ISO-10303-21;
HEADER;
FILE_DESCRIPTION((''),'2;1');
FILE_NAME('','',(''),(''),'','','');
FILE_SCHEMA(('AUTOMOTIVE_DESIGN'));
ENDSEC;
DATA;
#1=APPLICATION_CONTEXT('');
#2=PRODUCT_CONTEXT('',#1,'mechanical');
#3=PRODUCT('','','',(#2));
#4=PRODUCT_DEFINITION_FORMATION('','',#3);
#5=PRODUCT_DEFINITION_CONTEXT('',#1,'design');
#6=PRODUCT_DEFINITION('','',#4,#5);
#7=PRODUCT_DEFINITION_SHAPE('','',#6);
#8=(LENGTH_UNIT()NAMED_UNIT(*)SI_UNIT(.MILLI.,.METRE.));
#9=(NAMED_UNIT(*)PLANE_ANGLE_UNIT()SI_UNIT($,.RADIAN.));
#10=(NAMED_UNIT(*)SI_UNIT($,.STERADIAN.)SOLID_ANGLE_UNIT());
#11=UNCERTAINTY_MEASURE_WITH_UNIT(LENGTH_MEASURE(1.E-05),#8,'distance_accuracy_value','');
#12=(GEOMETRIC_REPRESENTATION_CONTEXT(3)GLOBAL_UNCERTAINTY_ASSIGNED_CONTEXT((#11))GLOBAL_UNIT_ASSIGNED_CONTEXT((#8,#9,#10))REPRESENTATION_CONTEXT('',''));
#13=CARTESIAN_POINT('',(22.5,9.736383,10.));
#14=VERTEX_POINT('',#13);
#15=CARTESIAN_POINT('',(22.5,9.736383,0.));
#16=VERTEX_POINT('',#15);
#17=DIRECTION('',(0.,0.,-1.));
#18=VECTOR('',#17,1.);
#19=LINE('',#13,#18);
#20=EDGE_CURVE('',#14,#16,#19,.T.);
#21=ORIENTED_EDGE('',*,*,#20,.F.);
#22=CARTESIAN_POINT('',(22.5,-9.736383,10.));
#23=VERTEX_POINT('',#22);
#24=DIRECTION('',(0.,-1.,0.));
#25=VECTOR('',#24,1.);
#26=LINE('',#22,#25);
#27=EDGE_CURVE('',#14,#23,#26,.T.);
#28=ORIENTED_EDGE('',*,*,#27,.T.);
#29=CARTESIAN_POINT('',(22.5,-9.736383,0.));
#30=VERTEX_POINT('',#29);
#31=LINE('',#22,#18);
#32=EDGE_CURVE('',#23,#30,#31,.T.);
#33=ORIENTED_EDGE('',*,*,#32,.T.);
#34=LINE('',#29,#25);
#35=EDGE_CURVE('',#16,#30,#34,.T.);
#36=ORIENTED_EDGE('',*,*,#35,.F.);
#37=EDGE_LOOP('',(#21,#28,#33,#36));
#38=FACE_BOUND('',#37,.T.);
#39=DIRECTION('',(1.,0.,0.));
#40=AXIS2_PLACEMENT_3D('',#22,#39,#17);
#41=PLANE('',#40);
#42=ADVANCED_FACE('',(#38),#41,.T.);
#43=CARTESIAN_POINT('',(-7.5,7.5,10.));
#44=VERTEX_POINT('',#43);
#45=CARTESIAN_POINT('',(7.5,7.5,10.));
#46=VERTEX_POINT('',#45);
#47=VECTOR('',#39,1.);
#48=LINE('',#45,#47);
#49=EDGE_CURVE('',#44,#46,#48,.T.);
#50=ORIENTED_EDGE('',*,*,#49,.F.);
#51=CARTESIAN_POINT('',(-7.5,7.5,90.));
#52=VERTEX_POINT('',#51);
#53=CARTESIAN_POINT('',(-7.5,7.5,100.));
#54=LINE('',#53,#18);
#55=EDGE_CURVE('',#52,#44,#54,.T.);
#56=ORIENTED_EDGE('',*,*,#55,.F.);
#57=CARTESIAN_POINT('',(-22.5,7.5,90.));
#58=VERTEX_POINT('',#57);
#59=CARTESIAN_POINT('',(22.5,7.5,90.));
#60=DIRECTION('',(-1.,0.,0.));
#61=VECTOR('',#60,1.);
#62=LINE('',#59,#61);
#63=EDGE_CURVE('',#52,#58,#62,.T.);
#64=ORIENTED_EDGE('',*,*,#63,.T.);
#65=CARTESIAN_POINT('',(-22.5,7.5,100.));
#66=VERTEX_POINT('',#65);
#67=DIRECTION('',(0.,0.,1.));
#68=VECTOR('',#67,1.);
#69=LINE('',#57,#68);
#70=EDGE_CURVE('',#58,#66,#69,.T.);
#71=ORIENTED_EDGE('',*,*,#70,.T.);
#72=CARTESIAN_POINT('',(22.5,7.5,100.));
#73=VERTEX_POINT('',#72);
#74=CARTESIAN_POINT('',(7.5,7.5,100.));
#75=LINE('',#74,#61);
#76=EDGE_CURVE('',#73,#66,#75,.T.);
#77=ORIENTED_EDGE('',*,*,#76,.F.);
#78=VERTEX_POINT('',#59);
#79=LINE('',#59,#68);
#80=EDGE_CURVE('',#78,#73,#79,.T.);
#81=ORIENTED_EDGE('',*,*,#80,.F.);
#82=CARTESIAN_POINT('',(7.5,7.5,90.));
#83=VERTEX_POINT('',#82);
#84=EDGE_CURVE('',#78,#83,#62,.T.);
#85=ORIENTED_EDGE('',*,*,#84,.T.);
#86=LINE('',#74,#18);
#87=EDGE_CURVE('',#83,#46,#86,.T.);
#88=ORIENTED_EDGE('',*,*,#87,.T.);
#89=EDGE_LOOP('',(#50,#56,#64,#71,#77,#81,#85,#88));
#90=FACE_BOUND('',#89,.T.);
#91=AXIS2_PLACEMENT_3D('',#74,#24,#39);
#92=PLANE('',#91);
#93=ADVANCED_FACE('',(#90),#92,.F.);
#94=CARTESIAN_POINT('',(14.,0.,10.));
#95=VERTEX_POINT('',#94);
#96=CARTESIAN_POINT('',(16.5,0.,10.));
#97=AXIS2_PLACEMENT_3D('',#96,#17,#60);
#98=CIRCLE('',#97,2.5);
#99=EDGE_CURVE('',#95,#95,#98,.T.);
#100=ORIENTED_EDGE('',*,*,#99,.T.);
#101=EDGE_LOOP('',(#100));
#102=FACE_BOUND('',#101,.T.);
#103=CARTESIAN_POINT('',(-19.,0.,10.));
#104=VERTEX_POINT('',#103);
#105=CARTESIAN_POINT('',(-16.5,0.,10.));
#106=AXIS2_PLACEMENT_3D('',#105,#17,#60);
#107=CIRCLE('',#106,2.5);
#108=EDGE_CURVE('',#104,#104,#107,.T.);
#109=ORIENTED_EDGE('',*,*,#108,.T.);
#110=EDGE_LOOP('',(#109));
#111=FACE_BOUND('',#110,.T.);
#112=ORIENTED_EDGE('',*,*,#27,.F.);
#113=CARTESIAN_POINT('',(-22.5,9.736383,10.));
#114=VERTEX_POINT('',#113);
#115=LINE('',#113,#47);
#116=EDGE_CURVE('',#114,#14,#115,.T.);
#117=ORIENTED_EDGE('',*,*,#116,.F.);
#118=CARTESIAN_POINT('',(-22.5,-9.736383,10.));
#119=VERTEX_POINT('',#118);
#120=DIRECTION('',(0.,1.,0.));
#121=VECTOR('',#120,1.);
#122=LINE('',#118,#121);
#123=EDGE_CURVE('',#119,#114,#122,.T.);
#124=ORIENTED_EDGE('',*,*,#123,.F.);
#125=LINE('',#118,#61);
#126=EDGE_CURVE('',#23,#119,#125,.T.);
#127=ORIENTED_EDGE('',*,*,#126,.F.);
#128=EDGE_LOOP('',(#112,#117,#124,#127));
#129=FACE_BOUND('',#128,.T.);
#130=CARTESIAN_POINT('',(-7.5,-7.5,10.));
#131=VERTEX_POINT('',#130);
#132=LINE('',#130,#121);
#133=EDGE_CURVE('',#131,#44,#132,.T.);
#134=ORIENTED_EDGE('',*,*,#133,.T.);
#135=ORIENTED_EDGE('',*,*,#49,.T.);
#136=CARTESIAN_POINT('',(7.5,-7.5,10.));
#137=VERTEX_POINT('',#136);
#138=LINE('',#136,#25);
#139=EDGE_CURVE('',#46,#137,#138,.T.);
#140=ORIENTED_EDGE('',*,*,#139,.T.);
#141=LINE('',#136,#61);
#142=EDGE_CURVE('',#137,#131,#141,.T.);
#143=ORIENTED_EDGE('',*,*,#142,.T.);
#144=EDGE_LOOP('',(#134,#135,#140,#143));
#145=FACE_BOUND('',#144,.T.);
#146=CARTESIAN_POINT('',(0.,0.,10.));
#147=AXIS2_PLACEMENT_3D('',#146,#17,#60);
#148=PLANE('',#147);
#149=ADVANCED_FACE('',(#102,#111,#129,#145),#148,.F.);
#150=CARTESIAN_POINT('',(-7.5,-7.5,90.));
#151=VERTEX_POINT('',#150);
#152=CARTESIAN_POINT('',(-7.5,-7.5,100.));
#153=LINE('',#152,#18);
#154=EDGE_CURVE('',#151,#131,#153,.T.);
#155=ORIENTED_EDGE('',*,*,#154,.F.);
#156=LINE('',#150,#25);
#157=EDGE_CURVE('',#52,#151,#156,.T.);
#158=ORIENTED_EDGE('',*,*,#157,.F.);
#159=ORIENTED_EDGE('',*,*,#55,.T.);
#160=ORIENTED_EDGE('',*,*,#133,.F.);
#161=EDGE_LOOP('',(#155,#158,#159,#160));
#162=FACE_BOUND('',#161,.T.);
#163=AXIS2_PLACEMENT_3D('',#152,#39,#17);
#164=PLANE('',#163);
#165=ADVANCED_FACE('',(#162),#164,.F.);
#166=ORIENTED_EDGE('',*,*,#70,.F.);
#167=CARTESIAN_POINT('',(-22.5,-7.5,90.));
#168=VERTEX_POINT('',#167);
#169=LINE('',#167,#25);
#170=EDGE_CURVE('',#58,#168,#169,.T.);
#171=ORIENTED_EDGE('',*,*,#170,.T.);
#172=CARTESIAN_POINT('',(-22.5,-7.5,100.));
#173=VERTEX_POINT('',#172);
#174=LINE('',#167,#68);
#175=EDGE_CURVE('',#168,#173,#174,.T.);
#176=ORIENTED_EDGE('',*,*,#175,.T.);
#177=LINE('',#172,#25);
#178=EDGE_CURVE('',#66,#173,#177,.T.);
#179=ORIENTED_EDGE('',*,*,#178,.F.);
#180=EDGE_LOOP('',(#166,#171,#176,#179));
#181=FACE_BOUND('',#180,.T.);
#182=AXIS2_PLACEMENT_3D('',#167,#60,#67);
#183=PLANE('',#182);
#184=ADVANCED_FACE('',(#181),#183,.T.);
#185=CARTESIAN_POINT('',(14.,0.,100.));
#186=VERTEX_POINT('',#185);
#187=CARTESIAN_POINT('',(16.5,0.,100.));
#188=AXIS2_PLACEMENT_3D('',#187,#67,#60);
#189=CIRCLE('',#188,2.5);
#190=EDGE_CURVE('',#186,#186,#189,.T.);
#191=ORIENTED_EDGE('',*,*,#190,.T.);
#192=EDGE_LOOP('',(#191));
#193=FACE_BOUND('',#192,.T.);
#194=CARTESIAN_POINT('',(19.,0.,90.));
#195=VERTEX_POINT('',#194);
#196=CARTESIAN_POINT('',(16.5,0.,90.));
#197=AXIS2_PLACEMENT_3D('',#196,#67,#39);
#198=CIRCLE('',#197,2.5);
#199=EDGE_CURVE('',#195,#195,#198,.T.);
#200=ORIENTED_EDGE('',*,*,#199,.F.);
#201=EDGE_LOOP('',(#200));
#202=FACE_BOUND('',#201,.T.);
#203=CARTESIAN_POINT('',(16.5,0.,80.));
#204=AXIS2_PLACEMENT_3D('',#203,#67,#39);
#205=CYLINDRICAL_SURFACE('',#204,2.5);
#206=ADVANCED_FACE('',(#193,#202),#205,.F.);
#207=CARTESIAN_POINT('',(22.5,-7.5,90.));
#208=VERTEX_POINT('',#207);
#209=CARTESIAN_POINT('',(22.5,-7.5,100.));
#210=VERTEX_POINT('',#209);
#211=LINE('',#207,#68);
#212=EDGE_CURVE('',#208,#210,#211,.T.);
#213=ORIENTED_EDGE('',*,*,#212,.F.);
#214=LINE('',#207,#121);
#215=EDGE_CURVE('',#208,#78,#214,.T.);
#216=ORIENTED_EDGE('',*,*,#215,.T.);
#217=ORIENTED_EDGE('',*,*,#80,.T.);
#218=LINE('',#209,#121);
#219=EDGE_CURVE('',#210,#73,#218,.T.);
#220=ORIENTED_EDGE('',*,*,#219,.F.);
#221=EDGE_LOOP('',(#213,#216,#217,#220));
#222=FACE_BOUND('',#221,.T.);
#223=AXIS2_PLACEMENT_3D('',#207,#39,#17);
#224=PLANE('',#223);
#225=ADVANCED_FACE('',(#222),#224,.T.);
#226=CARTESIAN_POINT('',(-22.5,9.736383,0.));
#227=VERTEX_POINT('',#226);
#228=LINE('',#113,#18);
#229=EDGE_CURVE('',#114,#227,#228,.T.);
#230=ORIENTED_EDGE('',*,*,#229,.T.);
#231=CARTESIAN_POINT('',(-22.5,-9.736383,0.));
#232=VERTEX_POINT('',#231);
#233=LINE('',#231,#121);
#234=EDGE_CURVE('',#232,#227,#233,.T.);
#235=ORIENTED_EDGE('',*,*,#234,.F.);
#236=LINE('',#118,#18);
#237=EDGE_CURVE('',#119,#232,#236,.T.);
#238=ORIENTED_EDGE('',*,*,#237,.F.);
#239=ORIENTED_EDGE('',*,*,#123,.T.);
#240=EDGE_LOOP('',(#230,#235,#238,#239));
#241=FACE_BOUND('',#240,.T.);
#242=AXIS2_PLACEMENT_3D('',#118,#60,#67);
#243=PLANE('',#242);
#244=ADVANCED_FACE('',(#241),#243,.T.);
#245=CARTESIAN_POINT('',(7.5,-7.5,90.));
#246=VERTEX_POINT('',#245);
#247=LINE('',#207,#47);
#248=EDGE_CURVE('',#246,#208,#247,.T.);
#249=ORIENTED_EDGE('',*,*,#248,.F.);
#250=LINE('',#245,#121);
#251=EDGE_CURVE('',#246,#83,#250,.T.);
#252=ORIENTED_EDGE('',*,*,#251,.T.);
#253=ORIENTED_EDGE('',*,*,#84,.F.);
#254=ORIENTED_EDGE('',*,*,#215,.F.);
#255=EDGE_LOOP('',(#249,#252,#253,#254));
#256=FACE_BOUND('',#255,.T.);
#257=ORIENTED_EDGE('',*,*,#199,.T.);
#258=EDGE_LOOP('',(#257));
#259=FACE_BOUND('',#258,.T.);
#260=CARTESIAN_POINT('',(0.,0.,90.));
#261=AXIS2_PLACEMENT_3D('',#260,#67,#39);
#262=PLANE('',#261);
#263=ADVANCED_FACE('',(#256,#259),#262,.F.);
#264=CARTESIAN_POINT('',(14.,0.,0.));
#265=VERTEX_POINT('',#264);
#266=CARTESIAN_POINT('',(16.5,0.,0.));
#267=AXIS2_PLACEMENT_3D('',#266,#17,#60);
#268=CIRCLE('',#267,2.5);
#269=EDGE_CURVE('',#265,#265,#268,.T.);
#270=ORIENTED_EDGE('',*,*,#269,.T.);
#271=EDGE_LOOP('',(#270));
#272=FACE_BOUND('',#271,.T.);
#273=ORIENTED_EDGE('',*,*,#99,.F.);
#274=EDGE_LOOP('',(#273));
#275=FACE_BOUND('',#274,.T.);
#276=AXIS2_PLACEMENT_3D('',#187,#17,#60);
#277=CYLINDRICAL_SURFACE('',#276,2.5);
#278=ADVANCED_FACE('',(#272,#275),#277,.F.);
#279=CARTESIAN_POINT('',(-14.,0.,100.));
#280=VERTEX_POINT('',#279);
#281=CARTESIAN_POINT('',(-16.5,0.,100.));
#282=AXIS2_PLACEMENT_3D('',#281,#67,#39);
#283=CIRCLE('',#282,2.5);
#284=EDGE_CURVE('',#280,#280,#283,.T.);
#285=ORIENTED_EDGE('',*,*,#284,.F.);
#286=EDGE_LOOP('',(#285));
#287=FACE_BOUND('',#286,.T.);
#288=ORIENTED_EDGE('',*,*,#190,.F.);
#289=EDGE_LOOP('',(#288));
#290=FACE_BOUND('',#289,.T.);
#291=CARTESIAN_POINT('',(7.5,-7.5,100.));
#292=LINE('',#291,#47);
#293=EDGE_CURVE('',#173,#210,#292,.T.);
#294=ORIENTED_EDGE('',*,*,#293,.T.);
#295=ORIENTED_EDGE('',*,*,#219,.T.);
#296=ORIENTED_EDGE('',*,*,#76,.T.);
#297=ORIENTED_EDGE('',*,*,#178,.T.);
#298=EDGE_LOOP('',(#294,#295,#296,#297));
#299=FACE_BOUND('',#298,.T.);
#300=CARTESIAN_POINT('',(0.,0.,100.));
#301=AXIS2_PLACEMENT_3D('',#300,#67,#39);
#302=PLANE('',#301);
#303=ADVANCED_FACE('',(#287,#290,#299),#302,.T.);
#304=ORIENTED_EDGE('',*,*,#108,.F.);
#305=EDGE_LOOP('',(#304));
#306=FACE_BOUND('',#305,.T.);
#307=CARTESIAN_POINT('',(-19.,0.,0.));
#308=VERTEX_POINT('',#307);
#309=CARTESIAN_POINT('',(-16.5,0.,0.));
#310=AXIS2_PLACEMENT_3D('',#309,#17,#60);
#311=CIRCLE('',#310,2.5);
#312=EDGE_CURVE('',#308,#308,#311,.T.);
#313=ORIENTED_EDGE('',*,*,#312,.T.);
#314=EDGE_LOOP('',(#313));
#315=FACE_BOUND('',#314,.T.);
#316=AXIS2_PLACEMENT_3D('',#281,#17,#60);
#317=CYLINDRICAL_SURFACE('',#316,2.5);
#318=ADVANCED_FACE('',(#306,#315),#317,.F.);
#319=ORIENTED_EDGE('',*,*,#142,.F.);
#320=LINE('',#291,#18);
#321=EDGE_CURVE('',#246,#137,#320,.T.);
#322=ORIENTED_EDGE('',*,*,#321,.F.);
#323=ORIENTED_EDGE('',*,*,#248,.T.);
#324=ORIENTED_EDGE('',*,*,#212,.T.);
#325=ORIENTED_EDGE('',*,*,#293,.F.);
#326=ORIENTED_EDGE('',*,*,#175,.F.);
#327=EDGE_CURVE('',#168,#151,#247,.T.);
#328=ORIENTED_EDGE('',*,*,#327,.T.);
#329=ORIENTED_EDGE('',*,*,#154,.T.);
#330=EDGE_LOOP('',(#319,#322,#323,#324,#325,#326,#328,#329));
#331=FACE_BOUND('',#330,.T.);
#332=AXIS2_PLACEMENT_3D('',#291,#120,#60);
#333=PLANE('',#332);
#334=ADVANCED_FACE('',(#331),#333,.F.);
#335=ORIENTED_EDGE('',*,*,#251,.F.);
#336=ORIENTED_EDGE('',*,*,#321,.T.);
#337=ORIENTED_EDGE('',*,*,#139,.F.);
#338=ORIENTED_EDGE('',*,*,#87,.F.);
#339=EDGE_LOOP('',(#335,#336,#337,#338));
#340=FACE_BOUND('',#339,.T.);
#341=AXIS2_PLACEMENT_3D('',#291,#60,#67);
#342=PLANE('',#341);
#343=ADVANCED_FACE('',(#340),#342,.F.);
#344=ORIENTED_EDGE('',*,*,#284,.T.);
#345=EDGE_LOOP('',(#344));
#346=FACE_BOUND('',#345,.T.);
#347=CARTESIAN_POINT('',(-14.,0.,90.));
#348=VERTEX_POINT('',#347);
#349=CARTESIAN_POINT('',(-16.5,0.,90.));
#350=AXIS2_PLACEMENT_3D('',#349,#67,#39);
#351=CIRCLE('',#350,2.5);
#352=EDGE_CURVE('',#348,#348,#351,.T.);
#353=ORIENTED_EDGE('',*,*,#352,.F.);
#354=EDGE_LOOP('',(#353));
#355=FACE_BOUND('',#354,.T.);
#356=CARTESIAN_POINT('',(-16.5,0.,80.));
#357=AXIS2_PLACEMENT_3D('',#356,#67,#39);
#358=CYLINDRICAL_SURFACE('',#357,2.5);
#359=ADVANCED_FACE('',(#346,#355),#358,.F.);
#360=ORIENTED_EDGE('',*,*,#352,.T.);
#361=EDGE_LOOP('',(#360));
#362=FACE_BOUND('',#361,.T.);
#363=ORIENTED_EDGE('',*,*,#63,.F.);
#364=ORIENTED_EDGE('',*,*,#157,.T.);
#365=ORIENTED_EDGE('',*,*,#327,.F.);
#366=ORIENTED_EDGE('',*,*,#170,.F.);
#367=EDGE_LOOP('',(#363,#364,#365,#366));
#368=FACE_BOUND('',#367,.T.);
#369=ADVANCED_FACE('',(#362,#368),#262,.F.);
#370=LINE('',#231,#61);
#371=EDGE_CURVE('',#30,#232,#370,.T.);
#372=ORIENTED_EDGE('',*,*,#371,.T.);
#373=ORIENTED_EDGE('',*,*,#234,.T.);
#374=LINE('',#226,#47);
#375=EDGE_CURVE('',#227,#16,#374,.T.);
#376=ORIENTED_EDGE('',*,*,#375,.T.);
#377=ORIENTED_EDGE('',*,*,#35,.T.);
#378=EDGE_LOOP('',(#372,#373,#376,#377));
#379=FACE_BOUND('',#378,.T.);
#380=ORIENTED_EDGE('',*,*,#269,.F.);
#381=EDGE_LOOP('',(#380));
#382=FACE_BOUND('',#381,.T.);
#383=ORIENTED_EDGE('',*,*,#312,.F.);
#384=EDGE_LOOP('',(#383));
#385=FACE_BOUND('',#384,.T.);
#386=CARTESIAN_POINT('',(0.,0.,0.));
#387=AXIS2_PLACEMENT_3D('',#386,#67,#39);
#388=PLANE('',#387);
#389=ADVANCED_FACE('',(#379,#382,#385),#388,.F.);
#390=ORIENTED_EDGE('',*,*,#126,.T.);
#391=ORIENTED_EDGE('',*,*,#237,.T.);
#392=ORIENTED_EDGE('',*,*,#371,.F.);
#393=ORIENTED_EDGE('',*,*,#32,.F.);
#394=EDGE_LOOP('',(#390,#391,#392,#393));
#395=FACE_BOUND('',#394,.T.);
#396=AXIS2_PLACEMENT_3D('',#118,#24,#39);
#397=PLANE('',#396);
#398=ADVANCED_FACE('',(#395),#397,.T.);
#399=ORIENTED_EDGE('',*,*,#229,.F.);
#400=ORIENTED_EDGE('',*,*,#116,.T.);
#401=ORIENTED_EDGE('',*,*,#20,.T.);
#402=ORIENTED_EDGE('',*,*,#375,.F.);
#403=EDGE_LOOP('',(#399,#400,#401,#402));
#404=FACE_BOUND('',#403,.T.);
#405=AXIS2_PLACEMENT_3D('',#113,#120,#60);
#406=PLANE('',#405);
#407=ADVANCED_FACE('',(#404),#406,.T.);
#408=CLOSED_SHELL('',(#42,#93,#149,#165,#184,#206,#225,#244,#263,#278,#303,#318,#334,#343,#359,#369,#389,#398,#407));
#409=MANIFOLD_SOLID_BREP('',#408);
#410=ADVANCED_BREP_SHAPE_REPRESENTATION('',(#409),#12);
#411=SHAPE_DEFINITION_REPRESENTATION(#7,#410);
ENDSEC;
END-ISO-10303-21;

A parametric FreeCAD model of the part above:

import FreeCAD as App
import Part
import Sketcher
from FreeCAD import Vector


def add_polygon(sketch, points):
    """Adds a closed chain of lines whose ends are joined by coincident constraints."""
    first, n = sketch.GeometryCount, len(points)
    for a, b in zip(points, points[1:] + points[:1]):
        sketch.addGeometry(Part.LineSegment(App.Vector(*a, 0), App.Vector(*b, 0)), False)
    for i in range(n):
        sketch.addConstraint(Sketcher.Constraint("Coincident", first + i, 2, first + (i + 1) % n, 1))

doc = App.newDocument("Part")
body = doc.addObject("PartDesign::Body", "Body")

# Sketch on XY plane
sketch1 = body.newObject("Sketcher::SketchObject", "Sketch")
sketch1.AttachmentSupport = (doc.getObject("XY_Plane"), [""])
sketch1.MapMode = "FlatFace"
add_polygon(sketch1, [(-8, 8), (-8, -8), (8, -8), (8, 8)])  # lines 0-3
sketch1.addConstraint(Sketcher.Constraint("Vertical", 0))
sketch1.addConstraint(Sketcher.Constraint("Horizontal", 1))
sketch1.addConstraint(Sketcher.Constraint("Vertical", 2))
sketch1.addConstraint(Sketcher.Constraint("Horizontal", 3))
sketch1.addConstraint(Sketcher.Constraint("Symmetric", 0, 2, 2, 2, -1, 1))
sketch1.addConstraint(Sketcher.Constraint("Equal", 3, 0))
sketch1.addConstraint(Sketcher.Constraint("DistanceX", 1, 1, 1, 2, 15.0))
pad1 = body.newObject("PartDesign::Pad", "Pad")
pad1.Profile = sketch1
pad1.Length = 100

# Sketch on XY plane
sketch2 = body.newObject("Sketcher::SketchObject", "Sketch001")
sketch2.AttachmentSupport = (doc.getObject("XY_Plane"), [""])
sketch2.MapMode = "FlatFace"
sketch2.AttachmentOffset = App.Placement(Vector(0, 0, 100), App.Rotation())
add_polygon(sketch2, [(-22, 8), (-22, -8), (22, -8), (22, 8)])  # lines 0-3
sketch2.addConstraint(Sketcher.Constraint("Vertical", 0))
sketch2.addConstraint(Sketcher.Constraint("Horizontal", 1))
sketch2.addConstraint(Sketcher.Constraint("Vertical", 2))
sketch2.addConstraint(Sketcher.Constraint("Horizontal", 3))
sketch2.addConstraint(Sketcher.Constraint("Symmetric", 0, 2, 2, 2, -1, 1))
sketch2.addConstraint(Sketcher.Constraint("DistanceX", 1, 1, 1, 2, 45.0))
sketch2.addConstraint(Sketcher.Constraint("DistanceY", 0, 2, 0, 1, 15.0))
pad2 = body.newObject("PartDesign::Pad", "Pad001")
pad2.Profile = sketch2
pad2.Length = 10
pad2.Reversed = True

# Sketch on XY plane
sketch3 = body.newObject("Sketcher::SketchObject", "Sketch002")
sketch3.AttachmentSupport = (doc.getObject("XY_Plane"), [""])
sketch3.MapMode = "FlatFace"
sketch3.AttachmentOffset = App.Placement(Vector(0, 0, 100), App.Rotation())
sketch3.addGeometry(Part.Circle(Vector(-16.5, 0, 0), Vector(0, 0, 1), 2.5), False)
sketch3.addGeometry(Part.Circle(Vector(16.5, 0, 0), Vector(0, 0, 1), 2.5), False)
sketch3.addConstraint(Sketcher.Constraint("Equal", 0, 1))
sketch3.addConstraint(Sketcher.Constraint("Symmetric", 0, 3, 1, 3, -1, 1))
sketch3.addConstraint(Sketcher.Constraint("PointOnObject", 0, 3, -1))
sketch3.addConstraint(Sketcher.Constraint("Diameter", 0, 5.0))
sketch3.addConstraint(Sketcher.Constraint("DistanceX", 0, 3, 1, 3, 33.0))
pocket1 = body.newObject("PartDesign::Pocket", "Pocket")
pocket1.Profile = sketch3
pocket1.Length = 20

# Sketch on XY plane
sketch4 = body.newObject("Sketcher::SketchObject", "Sketch003")
sketch4.AttachmentSupport = (doc.getObject("XY_Plane"), [""])
sketch4.MapMode = "FlatFace"
add_polygon(sketch4, [(22, 10), (22, -10), (-22, -10), (-22, 10)])  # lines 0-3
sketch4.addConstraint(Sketcher.Constraint("Vertical", 0))
sketch4.addConstraint(Sketcher.Constraint("Horizontal", 1))
sketch4.addConstraint(Sketcher.Constraint("Vertical", 2))
sketch4.addConstraint(Sketcher.Constraint("Horizontal", 3))
sketch4.addConstraint(Sketcher.Constraint("Symmetric", 0, 2, 2, 2, -1, 1))
sketch4.addConstraint(Sketcher.Constraint("DistanceX", 1, 2, 1, 1, 45.0))
sketch4.addConstraint(Sketcher.Constraint("DistanceY", 0, 2, 0, 1, 19.472766))
pad3 = body.newObject("PartDesign::Pad", "Pad002")
pad3.Profile = sketch4
pad3.Length = 10

# Sketch on XY plane
sketch5 = body.newObject("Sketcher::SketchObject", "Sketch004")
sketch5.AttachmentSupport = (doc.getObject("XY_Plane"), [""])
sketch5.MapMode = "FlatFace"
sketch5.addGeometry(Part.Circle(Vector(16.5, 0, 0), Vector(0, 0, 1), 2.5), False)
sketch5.addGeometry(Part.Circle(Vector(-16.5, 0, 0), Vector(0, 0, 1), 2.5), False)
sketch5.addConstraint(Sketcher.Constraint("Equal", 0, 1))
sketch5.addConstraint(Sketcher.Constraint("Symmetric", 0, 3, 1, 3, -1, 1))
sketch5.addConstraint(Sketcher.Constraint("PointOnObject", 0, 3, -1))
sketch5.addConstraint(Sketcher.Constraint("Diameter", 0, 5.0))
sketch5.addConstraint(Sketcher.Constraint("DistanceX", 1, 3, 0, 3, 33.0))
pocket2 = body.newObject("PartDesign::Pocket", "Pocket001")
pocket2.Profile = sketch5
pocket2.Type = "ThroughAll"
pocket2.Reversed = True

doc.recompute()
